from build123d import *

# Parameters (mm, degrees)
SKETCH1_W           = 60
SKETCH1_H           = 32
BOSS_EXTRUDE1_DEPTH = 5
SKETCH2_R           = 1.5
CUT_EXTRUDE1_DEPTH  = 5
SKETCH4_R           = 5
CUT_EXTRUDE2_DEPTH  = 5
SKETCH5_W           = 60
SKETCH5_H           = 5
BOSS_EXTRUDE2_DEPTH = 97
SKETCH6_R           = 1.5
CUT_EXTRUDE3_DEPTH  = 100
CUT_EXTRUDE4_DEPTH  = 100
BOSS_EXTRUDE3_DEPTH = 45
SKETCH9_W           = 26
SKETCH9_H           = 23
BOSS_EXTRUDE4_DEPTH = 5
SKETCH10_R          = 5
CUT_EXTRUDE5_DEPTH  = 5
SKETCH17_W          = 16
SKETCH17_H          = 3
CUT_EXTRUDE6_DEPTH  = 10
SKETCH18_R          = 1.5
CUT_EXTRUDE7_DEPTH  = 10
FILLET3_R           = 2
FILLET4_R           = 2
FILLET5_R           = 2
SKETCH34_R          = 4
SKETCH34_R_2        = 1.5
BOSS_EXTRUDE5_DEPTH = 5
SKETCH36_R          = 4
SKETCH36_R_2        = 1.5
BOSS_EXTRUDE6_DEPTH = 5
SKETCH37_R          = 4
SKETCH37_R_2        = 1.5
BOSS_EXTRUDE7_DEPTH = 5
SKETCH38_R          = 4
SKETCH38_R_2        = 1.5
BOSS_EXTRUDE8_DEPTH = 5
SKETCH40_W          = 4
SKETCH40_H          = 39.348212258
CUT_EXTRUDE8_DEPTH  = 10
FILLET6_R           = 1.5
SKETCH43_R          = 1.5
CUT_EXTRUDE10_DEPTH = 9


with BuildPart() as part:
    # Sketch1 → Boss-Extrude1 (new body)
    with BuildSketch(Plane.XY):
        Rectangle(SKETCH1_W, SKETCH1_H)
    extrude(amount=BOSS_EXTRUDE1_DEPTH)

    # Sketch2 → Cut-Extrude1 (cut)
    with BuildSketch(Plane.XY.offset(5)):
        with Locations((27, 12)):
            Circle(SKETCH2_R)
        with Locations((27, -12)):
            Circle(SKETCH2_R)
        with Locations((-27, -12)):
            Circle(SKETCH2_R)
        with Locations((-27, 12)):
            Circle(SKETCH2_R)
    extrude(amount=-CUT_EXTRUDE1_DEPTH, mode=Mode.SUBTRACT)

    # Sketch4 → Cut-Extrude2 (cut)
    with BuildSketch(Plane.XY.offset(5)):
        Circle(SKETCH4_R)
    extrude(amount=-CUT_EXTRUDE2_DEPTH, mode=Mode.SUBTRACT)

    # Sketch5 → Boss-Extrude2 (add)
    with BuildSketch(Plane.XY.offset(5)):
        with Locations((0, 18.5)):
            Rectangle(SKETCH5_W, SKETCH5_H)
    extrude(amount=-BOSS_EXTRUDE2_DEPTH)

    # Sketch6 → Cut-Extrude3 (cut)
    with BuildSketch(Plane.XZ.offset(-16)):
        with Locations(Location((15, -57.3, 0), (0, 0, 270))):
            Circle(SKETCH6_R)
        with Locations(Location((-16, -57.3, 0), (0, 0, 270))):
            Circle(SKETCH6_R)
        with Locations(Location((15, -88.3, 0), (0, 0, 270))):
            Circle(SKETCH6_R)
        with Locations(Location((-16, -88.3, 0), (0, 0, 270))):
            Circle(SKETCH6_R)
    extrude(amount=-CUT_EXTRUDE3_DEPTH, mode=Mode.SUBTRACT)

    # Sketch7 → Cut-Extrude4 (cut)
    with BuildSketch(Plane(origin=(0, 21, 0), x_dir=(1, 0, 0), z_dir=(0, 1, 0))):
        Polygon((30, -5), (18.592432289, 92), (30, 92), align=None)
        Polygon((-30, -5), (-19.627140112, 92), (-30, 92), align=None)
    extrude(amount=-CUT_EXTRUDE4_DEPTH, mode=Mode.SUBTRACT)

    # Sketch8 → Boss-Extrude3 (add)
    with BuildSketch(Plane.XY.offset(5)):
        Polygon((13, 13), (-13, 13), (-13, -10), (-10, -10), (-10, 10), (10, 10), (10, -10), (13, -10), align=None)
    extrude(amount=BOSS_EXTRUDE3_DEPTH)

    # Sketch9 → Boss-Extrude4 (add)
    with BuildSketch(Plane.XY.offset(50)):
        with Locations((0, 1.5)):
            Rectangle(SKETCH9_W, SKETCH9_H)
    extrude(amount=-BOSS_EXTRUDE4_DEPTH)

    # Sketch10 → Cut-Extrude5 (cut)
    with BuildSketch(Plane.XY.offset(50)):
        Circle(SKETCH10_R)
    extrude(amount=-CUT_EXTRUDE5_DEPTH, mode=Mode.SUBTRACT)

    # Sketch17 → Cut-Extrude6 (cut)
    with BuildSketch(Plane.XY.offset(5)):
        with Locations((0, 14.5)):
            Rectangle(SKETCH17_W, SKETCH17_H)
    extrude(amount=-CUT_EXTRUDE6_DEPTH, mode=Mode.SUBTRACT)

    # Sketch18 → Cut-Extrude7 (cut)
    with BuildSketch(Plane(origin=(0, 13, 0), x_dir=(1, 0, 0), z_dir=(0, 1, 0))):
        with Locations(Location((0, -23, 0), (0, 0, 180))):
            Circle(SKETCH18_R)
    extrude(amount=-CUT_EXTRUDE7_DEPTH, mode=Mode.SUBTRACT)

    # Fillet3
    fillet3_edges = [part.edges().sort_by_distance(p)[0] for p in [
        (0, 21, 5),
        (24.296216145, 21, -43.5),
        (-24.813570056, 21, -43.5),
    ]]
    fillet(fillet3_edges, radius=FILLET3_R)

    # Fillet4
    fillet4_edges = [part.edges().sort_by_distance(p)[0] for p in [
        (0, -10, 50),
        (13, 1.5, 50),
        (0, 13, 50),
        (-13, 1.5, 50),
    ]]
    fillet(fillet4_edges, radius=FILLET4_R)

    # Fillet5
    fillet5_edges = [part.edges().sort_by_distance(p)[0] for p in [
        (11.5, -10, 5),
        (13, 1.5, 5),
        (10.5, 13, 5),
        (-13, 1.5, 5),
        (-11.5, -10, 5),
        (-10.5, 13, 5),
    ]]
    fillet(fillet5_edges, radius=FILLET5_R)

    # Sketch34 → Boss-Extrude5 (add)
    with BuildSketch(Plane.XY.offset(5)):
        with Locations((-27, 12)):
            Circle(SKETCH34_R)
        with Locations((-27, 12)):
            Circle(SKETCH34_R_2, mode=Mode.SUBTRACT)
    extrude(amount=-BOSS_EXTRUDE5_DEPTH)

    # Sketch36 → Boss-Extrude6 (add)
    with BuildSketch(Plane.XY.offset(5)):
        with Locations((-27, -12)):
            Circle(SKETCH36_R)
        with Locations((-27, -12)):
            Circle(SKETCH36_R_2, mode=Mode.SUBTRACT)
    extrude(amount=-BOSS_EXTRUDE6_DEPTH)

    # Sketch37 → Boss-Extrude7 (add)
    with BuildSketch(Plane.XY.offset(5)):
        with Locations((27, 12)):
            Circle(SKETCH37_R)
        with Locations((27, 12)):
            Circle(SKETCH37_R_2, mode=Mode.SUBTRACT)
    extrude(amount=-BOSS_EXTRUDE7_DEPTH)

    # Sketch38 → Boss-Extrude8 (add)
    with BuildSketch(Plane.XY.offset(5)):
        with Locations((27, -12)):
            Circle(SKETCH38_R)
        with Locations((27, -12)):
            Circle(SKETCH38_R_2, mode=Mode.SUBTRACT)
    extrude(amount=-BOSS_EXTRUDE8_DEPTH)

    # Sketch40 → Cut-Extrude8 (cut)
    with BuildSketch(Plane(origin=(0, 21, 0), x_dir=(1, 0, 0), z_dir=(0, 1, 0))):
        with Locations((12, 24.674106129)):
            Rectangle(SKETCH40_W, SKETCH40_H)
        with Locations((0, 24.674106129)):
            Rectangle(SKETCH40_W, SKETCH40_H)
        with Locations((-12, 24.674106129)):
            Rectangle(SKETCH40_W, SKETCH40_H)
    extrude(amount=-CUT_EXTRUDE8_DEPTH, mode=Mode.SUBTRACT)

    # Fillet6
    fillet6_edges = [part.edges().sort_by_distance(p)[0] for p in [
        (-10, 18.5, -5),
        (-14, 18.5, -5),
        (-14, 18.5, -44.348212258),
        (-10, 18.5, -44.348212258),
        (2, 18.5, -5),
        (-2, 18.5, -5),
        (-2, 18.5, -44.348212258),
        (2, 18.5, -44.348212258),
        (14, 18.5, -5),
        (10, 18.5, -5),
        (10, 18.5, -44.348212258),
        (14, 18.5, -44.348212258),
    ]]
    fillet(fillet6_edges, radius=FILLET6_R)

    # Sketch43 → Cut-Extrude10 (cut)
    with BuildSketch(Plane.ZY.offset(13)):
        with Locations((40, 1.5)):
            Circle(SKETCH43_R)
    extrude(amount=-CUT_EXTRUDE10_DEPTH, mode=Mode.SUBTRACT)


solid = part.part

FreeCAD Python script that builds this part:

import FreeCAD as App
import Part
import Sketcher

V = App.Vector


def edges_at(feature, points):
    """Names of the edges that pass closest to the given points."""
    edges = feature.Shape.Edges
    near = lambda p: min(range(len(edges)), key=lambda i: edges[i].distToShape(Part.Vertex(*p))[0])
    return sorted({f"Edge{near(p) + 1}" for p in points})


def add_polygon(sketch, points):
    """Adds a closed chain of lines whose ends are joined by coincident constraints."""
    first, n = sketch.GeometryCount, len(points)
    for a, b in zip(points, points[1:] + points[:1]):
        sketch.addGeometry(Part.LineSegment(App.Vector(*a, 0), App.Vector(*b, 0)), False)
    for i in range(n):
        sketch.addConstraint(Sketcher.Constraint("Coincident", first + i, 2, first + (i + 1) % n, 1))

doc = App.newDocument("Part")
body = doc.addObject("PartDesign::Body", "Body")

# Sketch on XY plane
sketch1 = body.newObject("Sketcher::SketchObject", "Sketch")
sketch1.AttachmentSupport = (doc.getObject("XY_Plane"), [""])
sketch1.MapMode = "FlatFace"
add_polygon(sketch1, [(-30, 16), (-30, -16), (30, -16), (30, 16)])  # lines 0-3
sketch1.addConstraint(Sketcher.Constraint("Vertical", 0))
sketch1.addConstraint(Sketcher.Constraint("Horizontal", 1))
sketch1.addConstraint(Sketcher.Constraint("Vertical", 2))
sketch1.addConstraint(Sketcher.Constraint("Horizontal", 3))
sketch1.addConstraint(Sketcher.Constraint("Symmetric", 0, 2, 2, 2, -1, 1))
sketch1.addConstraint(Sketcher.Constraint("DistanceX", 1, 1, 1, 2, 60.0))
sketch1.addConstraint(Sketcher.Constraint("DistanceY", 0, 2, 0, 1, 32.0))
pad1 = body.newObject("PartDesign::Pad", "Pad")
pad1.Profile = sketch1
pad1.Length = 5

# Sketch on XY plane
sketch2 = body.newObject("Sketcher::SketchObject", "Sketch001")
sketch2.AttachmentSupport = (doc.getObject("XY_Plane"), [""])
sketch2.MapMode = "FlatFace"
sketch2.AttachmentOffset = App.Placement(V(0, 0, 5), App.Rotation())
sketch2.addGeometry(Part.Circle(V(27, 12, 0), V(0, 0, 1), 1.5), False)
sketch2.addGeometry(Part.Circle(V(27, -12, 0), V(0, 0, 1), 1.5), False)
sketch2.addGeometry(Part.Circle(V(-27, -12, 0), V(0, 0, 1), 1.5), False)
sketch2.addGeometry(Part.Circle(V(-27, 12, 0), V(0, 0, 1), 1.5), False)
sketch2.addConstraint(Sketcher.Constraint("Equal", 0, 1))
sketch2.addConstraint(Sketcher.Constraint("Equal", 1, 2))
sketch2.addConstraint(Sketcher.Constraint("Equal", 2, 3))
sketch2.addConstraint(Sketcher.Constraint("Symmetric", 0, 3, 2, 3, -1, 1))
sketch2.addConstraint(Sketcher.Constraint("Symmetric", 1, 3, 3, 3, -1, 1))
sketch2.addConstraint(Sketcher.Constraint("Symmetric", 1, 3, 2, 3, -2))
sketch2.addConstraint(Sketcher.Constraint("Diameter", 0, 3.0))
sketch2.addConstraint(Sketcher.Constraint("DistanceX", -1, 1, 0, 3, 27.0))
sketch2.addConstraint(Sketcher.Constraint("DistanceY", -1, 1, 0, 3, 12.0))
pocket1 = body.newObject("PartDesign::Pocket", "Pocket")
pocket1.Profile = sketch2
pocket1.Length = 5

# Sketch on XY plane
sketch3 = body.newObject("Sketcher::SketchObject", "Sketch002")
sketch3.AttachmentSupport = (doc.getObject("XY_Plane"), [""])
sketch3.MapMode = "FlatFace"
sketch3.AttachmentOffset = App.Placement(V(0, 0, 5), App.Rotation())
sketch3.addGeometry(Part.Circle(V(0, 0, 0), V(0, 0, 1), 5), False)
sketch3.addConstraint(Sketcher.Constraint("Coincident", 0, 3, -1, 1))
sketch3.addConstraint(Sketcher.Constraint("Diameter", 0, 10.0))
pocket2 = body.newObject("PartDesign::Pocket", "Pocket001")
pocket2.Profile = sketch3
pocket2.Length = 5

# Sketch on XY plane
sketch4 = body.newObject("Sketcher::SketchObject", "Sketch003")
sketch4.AttachmentSupport = (doc.getObject("XY_Plane"), [""])
sketch4.MapMode = "FlatFace"
sketch4.AttachmentOffset = App.Placement(V(0, 0, 5), App.Rotation())
add_polygon(sketch4, [(-30, 21), (-30, 16), (30, 16), (30, 21)])  # lines 0-3
sketch4.addConstraint(Sketcher.Constraint("Vertical", 0))
sketch4.addConstraint(Sketcher.Constraint("Horizontal", 1))
sketch4.addConstraint(Sketcher.Constraint("Vertical", 2))
sketch4.addConstraint(Sketcher.Constraint("Horizontal", 3))
sketch4.addConstraint(Sketcher.Constraint("DistanceX", 1, 1, 1, 2, 60.0))
sketch4.addConstraint(Sketcher.Constraint("DistanceY", 0, 2, 0, 1, 5.0))
sketch4.addConstraint(Sketcher.Constraint("DistanceX", 0, 2, -1, 1, 30.0))
sketch4.addConstraint(Sketcher.Constraint("DistanceY", -1, 1, 0, 2, 16.0))
pad2 = body.newObject("PartDesign::Pad", "Pad001")
pad2.Profile = sketch4
pad2.Length = 97
pad2.Reversed = True

# Sketch on XZ plane
sketch5 = body.newObject("Sketcher::SketchObject", "Sketch004")
sketch5.AttachmentSupport = (doc.getObject("XZ_Plane"), [""])
sketch5.MapMode = "FlatFace"
sketch5.AttachmentOffset = App.Placement(V(0, 0, -16), App.Rotation())
sketch5.addGeometry(Part.Circle(V(15, -57.3, 0), V(0, 0, 1), 1.5), False)
sketch5.addGeometry(Part.Circle(V(-16, -57.3, 0), V(0, 0, 1), 1.5), False)
sketch5.addGeometry(Part.Circle(V(15, -88.3, 0), V(0, 0, 1), 1.5), False)
sketch5.addGeometry(Part.Circle(V(-16, -88.3, 0), V(0, 0, 1), 1.5), False)
sketch5.addConstraint(Sketcher.Constraint("Equal", 0, 1))
sketch5.addConstraint(Sketcher.Constraint("Equal", 1, 2))
sketch5.addConstraint(Sketcher.Constraint("Equal", 2, 3))
sketch5.addConstraint(Sketcher.Constraint("Horizontal", 0, 3, 1, 3))
sketch5.addConstraint(Sketcher.Constraint("Horizontal", 2, 3, 3, 3))
sketch5.addConstraint(Sketcher.Constraint("Vertical", 0, 3, 2, 3))
sketch5.addConstraint(Sketcher.Constraint("Vertical", 1, 3, 3, 3))
sketch5.addConstraint(Sketcher.Constraint("Diameter", 0, 3.0))
sketch5.addConstraint(Sketcher.Constraint("DistanceX", -1, 1, 0, 3, 15.0))
sketch5.addConstraint(Sketcher.Constraint("DistanceX", 1, 3, -1, 1, 16.0))
sketch5.addConstraint(Sketcher.Constraint("DistanceY", 2, 3, 0, 3, 31.0))
sketch5.addConstraint(Sketcher.Constraint("DistanceY", 0, 3, -1, 1, 57.3))
pocket3 = body.newObject("PartDesign::Pocket", "Pocket002")
pocket3.Profile = sketch5
pocket3.Length = 100

# Sketch on XZ plane
sketch6 = body.newObject("Sketcher::SketchObject", "Sketch005")
sketch6.AttachmentSupport = (doc.getObject("XZ_Plane"), [""])
sketch6.MapMode = "FlatFace"
sketch6.AttachmentOffset = App.Placement(V(0, 0, -21), App.Rotation())
add_polygon(sketch6, [(18.592432, -92), (30, 5), (30, -92)])  # lines 0-2
add_polygon(sketch6, [(-30, 5), (-19.62714, -92), (-30, -92)])  # lines 3-5
sketch6.addConstraint(Sketcher.Constraint("Vertical", 1))
sketch6.addConstraint(Sketcher.Constraint("Horizontal", 2))
sketch6.addConstraint(Sketcher.Constraint("Horizontal", 4))
sketch6.addConstraint(Sketcher.Constraint("Vertical", 5))
sketch6.addConstraint(Sketcher.Constraint("Symmetric", 1, 2, 4, 2, -2))
sketch6.addConstraint(Sketcher.Constraint("Horizontal", 0, 2, 5, 2))
sketch6.addConstraint(Sketcher.Constraint("DistanceY", 1, 2, 1, 1, 97.0))
sketch6.addConstraint(Sketcher.Constraint("DistanceX", -1, 1, 0, 2, 30.0))
sketch6.addConstraint(Sketcher.Constraint("DistanceY", -1, 1, 0, 2, 5.0))
sketch6.addConstraint(Sketcher.Constraint("DistanceX", 4, 2, 4, 1, 10.37286))
sketch6.addConstraint(Sketcher.Constraint("DistanceX", 2, 2, 2, 1, 11.407568))
pocket4 = body.newObject("PartDesign::Pocket", "Pocket003")
pocket4.Profile = sketch6
pocket4.Length = 100
pocket4.Reversed = True

# Sketch on XY plane
sketch7 = body.newObject("Sketcher::SketchObject", "Sketch006")
sketch7.AttachmentSupport = (doc.getObject("XY_Plane"), [""])
sketch7.MapMode = "FlatFace"
sketch7.AttachmentOffset = App.Placement(V(0, 0, 5), App.Rotation())
add_polygon(sketch7, [(13, 13), (-13, 13), (-13, -10), (-10, -10), (-10, 10), (10, 10), (10, -10), (13, -10)])  # lines 0-7
sketch7.addConstraint(Sketcher.Constraint("Horizontal", 0))
sketch7.addConstraint(Sketcher.Constraint("Vertical", 1))
sketch7.addConstraint(Sketcher.Constraint("Horizontal", 2))
sketch7.addConstraint(Sketcher.Constraint("Vertical", 3))
sketch7.addConstraint(Sketcher.Constraint("Horizontal", 4))
sketch7.addConstraint(Sketcher.Constraint("Vertical", 5))
sketch7.addConstraint(Sketcher.Constraint("Horizontal", 6))
sketch7.addConstraint(Sketcher.Constraint("Vertical", 7))
sketch7.addConstraint(Sketcher.Constraint("Symmetric", 2, 2, 4, 2, -1, 1))
sketch7.addConstraint(Sketcher.Constraint("Symmetric", 1, 2, 6, 2, -2))
sketch7.addConstraint(Sketcher.Constraint("Equal", 4, 3))
sketch7.addConstraint(Sketcher.Constraint("DistanceX", 0, 2, 0, 1, 26.0))
sketch7.addConstraint(Sketcher.Constraint("DistanceX", 2, 1, 2, 2, 3.0))
sketch7.addConstraint(Sketcher.Constraint("DistanceY", 1, 2, 1, 1, 23.0))
pad3 = body.newObject("PartDesign::Pad", "Pad002")
pad3.Profile = sketch7
pad3.Length = 45

# Sketch on XY plane
sketch8 = body.newObject("Sketcher::SketchObject", "Sketch007")
sketch8.AttachmentSupport = (doc.getObject("XY_Plane"), [""])
sketch8.MapMode = "FlatFace"
sketch8.AttachmentOffset = App.Placement(V(0, 0, 50), App.Rotation())
add_polygon(sketch8, [(-13, 13), (-13, -10), (13, -10), (13, 13)])  # lines 0-3
sketch8.addConstraint(Sketcher.Constraint("Vertical", 0))
sketch8.addConstraint(Sketcher.Constraint("Horizontal", 1))
sketch8.addConstraint(Sketcher.Constraint("Vertical", 2))
sketch8.addConstraint(Sketcher.Constraint("Horizontal", 3))
sketch8.addConstraint(Sketcher.Constraint("DistanceX", 1, 1, 1, 2, 26.0))
sketch8.addConstraint(Sketcher.Constraint("DistanceY", 0, 2, 0, 1, 23.0))
sketch8.addConstraint(Sketcher.Constraint("DistanceX", 0, 2, -1, 1, 13.0))
sketch8.addConstraint(Sketcher.Constraint("DistanceY", 0, 2, -1, 1, 10.0))
pad4 = body.newObject("PartDesign::Pad", "Pad003")
pad4.Profile = sketch8
pad4.Length = 5
pad4.Reversed = True

# Sketch on XY plane
sketch9 = body.newObject("Sketcher::SketchObject", "Sketch008")
sketch9.AttachmentSupport = (doc.getObject("XY_Plane"), [""])
sketch9.MapMode = "FlatFace"
sketch9.AttachmentOffset = App.Placement(V(0, 0, 50), App.Rotation())
sketch9.addGeometry(Part.Circle(V(0, 0, 0), V(0, 0, 1), 5), False)
sketch9.addConstraint(Sketcher.Constraint("Coincident", 0, 3, -1, 1))
sketch9.addConstraint(Sketcher.Constraint("Diameter", 0, 10.0))
pocket5 = body.newObject("PartDesign::Pocket", "Pocket004")
pocket5.Profile = sketch9
pocket5.Length = 5

# Sketch on XY plane
sketch10 = body.newObject("Sketcher::SketchObject", "Sketch009")
sketch10.AttachmentSupport = (doc.getObject("XY_Plane"), [""])
sketch10.MapMode = "FlatFace"
sketch10.AttachmentOffset = App.Placement(V(0, 0, 5), App.Rotation())
add_polygon(sketch10, [(-8, 16), (-8, 13), (8, 13), (8, 16)])  # lines 0-3
sketch10.addConstraint(Sketcher.Constraint("Vertical", 0))
sketch10.addConstraint(Sketcher.Constraint("Horizontal", 1))
sketch10.addConstraint(Sketcher.Constraint("Vertical", 2))
sketch10.addConstraint(Sketcher.Constraint("Horizontal", 3))
sketch10.addConstraint(Sketcher.Constraint("DistanceX", 1, 1, 1, 2, 16.0))
sketch10.addConstraint(Sketcher.Constraint("DistanceY", 0, 2, 0, 1, 3.0))
sketch10.addConstraint(Sketcher.Constraint("DistanceX", 0, 2, -1, 1, 8.0))
sketch10.addConstraint(Sketcher.Constraint("DistanceY", -1, 1, 0, 2, 13.0))
pocket6 = body.newObject("PartDesign::Pocket", "Pocket005")
pocket6.Profile = sketch10
pocket6.Length = 10

# Sketch on XZ plane
sketch11 = body.newObject("Sketcher::SketchObject", "Sketch010")
sketch11.AttachmentSupport = (doc.getObject("XZ_Plane"), [""])
sketch11.MapMode = "FlatFace"
sketch11.AttachmentOffset = App.Placement(V(0, 0, -13), App.Rotation())
sketch11.addGeometry(Part.Circle(V(0, 23, 0), V(0, 0, 1), 1.5), False)
sketch11.addConstraint(Sketcher.Constraint("PointOnObject", 0, 3, -2))
sketch11.addConstraint(Sketcher.Constraint("Diameter", 0, 3.0))
sketch11.addConstraint(Sketcher.Constraint("DistanceY", -1, 1, 0, 3, 23.0))
pocket7 = body.newObject("PartDesign::Pocket", "Pocket006")
pocket7.Profile = sketch11
pocket7.Length = 10
pocket7.Reversed = True
doc.recompute()

fillet = body.newObject("PartDesign::Fillet", "Fillet")
fillet.Base = (pocket7, edges_at(pocket7, [(0, 21, 5), (24.296, 21, -43.5), (-24.814, 21, -43.5)]))
fillet.Radius = 2
doc.recompute()

fillet2 = body.newObject("PartDesign::Fillet", "Fillet001")
fillet2.Base = (fillet, edges_at(fillet, [
    (0, -10, 50),
    (13, 1.5, 50),
    (0, 13, 50),
    (-13, 1.5, 50),
]))
fillet2.Radius = 2
doc.recompute()

fillet3 = body.newObject("PartDesign::Fillet", "Fillet002")
fillet3.Base = (fillet2, edges_at(fillet2, [
    (11.5, -10, 5),
    (13, 1.5, 5),
    (10.5, 13, 5),
    (-13, 1.5, 5),
    (-11.5, -10, 5),
    (-10.5, 13, 5),
]))
fillet3.Radius = 2

# Sketch on XY plane
sketch12 = body.newObject("Sketcher::SketchObject", "Sketch011")
sketch12.AttachmentSupport = (doc.getObject("XY_Plane"), [""])
sketch12.MapMode = "FlatFace"
sketch12.AttachmentOffset = App.Placement(V(0, 0, 5), App.Rotation())
sketch12.addGeometry(Part.Circle(V(-27, 12, 0), V(0, 0, 1), 4), False)
sketch12.addGeometry(Part.Circle(V(-27, 12, 0), V(0, 0, 1), 1.5), False)
sketch12.addConstraint(Sketcher.Constraint("Coincident", 1, 3, 0, 3))
sketch12.addConstraint(Sketcher.Constraint("Diameter", 0, 8.0))
sketch12.addConstraint(Sketcher.Constraint("Diameter", 1, 3.0))
sketch12.addConstraint(Sketcher.Constraint("DistanceX", 0, 3, -1, 1, 27.0))
sketch12.addConstraint(Sketcher.Constraint("DistanceY", -1, 1, 0, 3, 12.0))
pad5 = body.newObject("PartDesign::Pad", "Pad004")
pad5.Profile = sketch12
pad5.Length = 5
pad5.Reversed = True

# Sketch on XY plane
sketch13 = body.newObject("Sketcher::SketchObject", "Sketch012")
sketch13.AttachmentSupport = (doc.getObject("XY_Plane"), [""])
sketch13.MapMode = "FlatFace"
sketch13.AttachmentOffset = App.Placement(V(0, 0, 5), App.Rotation())
sketch13.addGeometry(Part.Circle(V(-27, -12, 0), V(0, 0, 1), 4), False)
sketch13.addGeometry(Part.Circle(V(-27, -12, 0), V(0, 0, 1), 1.5), False)
sketch13.addConstraint(Sketcher.Constraint("Coincident", 1, 3, 0, 3))
sketch13.addConstraint(Sketcher.Constraint("Diameter", 0, 8.0))
sketch13.addConstraint(Sketcher.Constraint("Diameter", 1, 3.0))
sketch13.addConstraint(Sketcher.Constraint("DistanceX", 0, 3, -1, 1, 27.0))
sketch13.addConstraint(Sketcher.Constraint("DistanceY", 0, 3, -1, 1, 12.0))
pad6 = body.newObject("PartDesign::Pad", "Pad005")
pad6.Profile = sketch13
pad6.Length = 5
pad6.Reversed = True

# Sketch on XY plane
sketch14 = body.newObject("Sketcher::SketchObject", "Sketch013")
sketch14.AttachmentSupport = (doc.getObject("XY_Plane"), [""])
sketch14.MapMode = "FlatFace"
sketch14.AttachmentOffset = App.Placement(V(0, 0, 5), App.Rotation())
sketch14.addGeometry(Part.Circle(V(27, 12, 0), V(0, 0, 1), 4), False)
sketch14.addGeometry(Part.Circle(V(27, 12, 0), V(0, 0, 1), 1.5), False)
sketch14.addConstraint(Sketcher.Constraint("Coincident", 1, 3, 0, 3))
sketch14.addConstraint(Sketcher.Constraint("Diameter", 0, 8.0))
sketch14.addConstraint(Sketcher.Constraint("Diameter", 1, 3.0))
sketch14.addConstraint(Sketcher.Constraint("DistanceX", -1, 1, 0, 3, 27.0))
sketch14.addConstraint(Sketcher.Constraint("DistanceY", -1, 1, 0, 3, 12.0))
pad7 = body.newObject("PartDesign::Pad", "Pad006")
pad7.Profile = sketch14
pad7.Length = 5
pad7.Reversed = True

# Sketch on XY plane
sketch15 = body.newObject("Sketcher::SketchObject", "Sketch014")
sketch15.AttachmentSupport = (doc.getObject("XY_Plane"), [""])
sketch15.MapMode = "FlatFace"
sketch15.AttachmentOffset = App.Placement(V(0, 0, 5), App.Rotation())
sketch15.addGeometry(Part.Circle(V(27, -12, 0), V(0, 0, 1), 4), False)
sketch15.addGeometry(Part.Circle(V(27, -12, 0), V(0, 0, 1), 1.5), False)
sketch15.addConstraint(Sketcher.Constraint("Coincident", 1, 3, 0, 3))
sketch15.addConstraint(Sketcher.Constraint("Diameter", 0, 8.0))
sketch15.addConstraint(Sketcher.Constraint("Diameter", 1, 3.0))
sketch15.addConstraint(Sketcher.Constraint("DistanceX", -1, 1, 0, 3, 27.0))
sketch15.addConstraint(Sketcher.Constraint("DistanceY", 0, 3, -1, 1, 12.0))
pad8 = body.newObject("PartDesign::Pad", "Pad007")
pad8.Profile = sketch15
pad8.Length = 5
pad8.Reversed = True

# Sketch on XZ plane
sketch16 = body.newObject("Sketcher::SketchObject", "Sketch015")
sketch16.AttachmentSupport = (doc.getObject("XZ_Plane"), [""])
sketch16.MapMode = "FlatFace"
sketch16.AttachmentOffset = App.Placement(V(0, 0, -21), App.Rotation())
add_polygon(sketch16, [(10, -44.348212), (10, -5), (14, -5), (14, -44.348212)])  # lines 0-3
add_polygon(sketch16, [(-2, -44.348212), (-2, -5), (2, -5), (2, -44.348212)])  # lines 4-7
add_polygon(sketch16, [(-14, -44.348212), (-14, -5), (-10, -5), (-10, -44.348212)])  # lines 8-11
sketch16.addConstraint(Sketcher.Constraint("Vertical", 0))
sketch16.addConstraint(Sketcher.Constraint("Horizontal", 1))
sketch16.addConstraint(Sketcher.Constraint("Vertical", 2))
sketch16.addConstraint(Sketcher.Constraint("Horizontal", 3))
sketch16.addConstraint(Sketcher.Constraint("Vertical", 4))
sketch16.addConstraint(Sketcher.Constraint("Horizontal", 5))
sketch16.addConstraint(Sketcher.Constraint("Vertical", 6))
sketch16.addConstraint(Sketcher.Constraint("Horizontal", 7))
sketch16.addConstraint(Sketcher.Constraint("Vertical", 8))
sketch16.addConstraint(Sketcher.Constraint("Horizontal", 9))
sketch16.addConstraint(Sketcher.Constraint("Vertical", 10))
sketch16.addConstraint(Sketcher.Constraint("Horizontal", 11))
sketch16.addConstraint(Sketcher.Constraint("Symmetric", 1, 2, 8, 2, -2))
sketch16.addConstraint(Sketcher.Constraint("Symmetric", 3, 2, 10, 2, -2))
sketch16.addConstraint(Sketcher.Constraint("Horizontal", 1, 2, 4, 2))
sketch16.addConstraint(Sketcher.Constraint("Horizontal", 3, 2, 6, 2))
sketch16.addConstraint(Sketcher.Constraint("Equal", 3, 5))
sketch16.addConstraint(Sketcher.Constraint("DistanceX", 1, 1, 1, 2, 4.0))
sketch16.addConstraint(Sketcher.Constraint("DistanceX", -1, 1, 0, 2, 10.0))
sketch16.addConstraint(Sketcher.Constraint("DistanceY", 0, 2, -1, 1, 5.0))
sketch16.addConstraint(Sketcher.Constraint("DistanceX", 4, 2, -1, 1, 2.0))
sketch16.addConstraint(Sketcher.Constraint("DistanceY", 0, 1, 0, 2, 39.348212))
pocket8 = body.newObject("PartDesign::Pocket", "Pocket007")
pocket8.Profile = sketch16
pocket8.Length = 10
pocket8.Reversed = True
doc.recompute()

fillet4 = body.newObject("PartDesign::Fillet", "Fillet003")
fillet4.Base = (pocket8, edges_at(pocket8, [
    (-10, 18.5, -5),
    (-14, 18.5, -5),
    (-14, 18.5, -44.348),
    (-10, 18.5, -44.348),
    (2, 18.5, -5),
    (-2, 18.5, -5),
    (-2, 18.5, -44.348),
    (2, 18.5, -44.348),
    (14, 18.5, -5),
    (10, 18.5, -5),
    (10, 18.5, -44.348),
    (14, 18.5, -44.348),
]))
fillet4.Radius = 1.5

# Sketch on YZ plane
sketch17 = body.newObject("Sketcher::SketchObject", "Sketch016")
sketch17.AttachmentSupport = (doc.getObject("YZ_Plane"), [""])
sketch17.MapMode = "FlatFace"
sketch17.AttachmentOffset = App.Placement(V(0, 0, -13), App.Rotation())
sketch17.addGeometry(Part.Circle(V(1.5, 40, 0), V(0, 0, 1), 1.5), False)
sketch17.addConstraint(Sketcher.Constraint("Diameter", 0, 3.0))
sketch17.addConstraint(Sketcher.Constraint("DistanceY", -1, 1, 0, 3, 40.0))
sketch17.addConstraint(Sketcher.Constraint("DistanceX", -1, 1, 0, 3, 1.5))
pocket9 = body.newObject("PartDesign::Pocket", "Pocket008")
pocket9.Profile = sketch17
pocket9.Length = 9
pocket9.Reversed = True

doc.recompute()
